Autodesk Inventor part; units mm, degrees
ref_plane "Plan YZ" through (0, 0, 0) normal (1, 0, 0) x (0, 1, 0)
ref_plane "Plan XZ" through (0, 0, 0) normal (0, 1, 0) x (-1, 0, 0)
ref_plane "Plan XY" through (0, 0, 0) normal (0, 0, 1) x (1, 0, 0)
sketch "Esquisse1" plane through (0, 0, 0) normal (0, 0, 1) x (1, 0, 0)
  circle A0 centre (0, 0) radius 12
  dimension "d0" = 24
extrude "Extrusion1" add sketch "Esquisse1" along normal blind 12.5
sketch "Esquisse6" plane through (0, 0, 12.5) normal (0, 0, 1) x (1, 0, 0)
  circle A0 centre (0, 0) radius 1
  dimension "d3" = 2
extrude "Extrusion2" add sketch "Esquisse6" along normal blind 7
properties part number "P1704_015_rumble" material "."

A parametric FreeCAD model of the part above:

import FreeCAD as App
import Part
import Sketcher
from FreeCAD import Vector

doc = App.newDocument("Part")
params = doc.addObject("Spreadsheet::Sheet", "Params")
for row, (alias, value) in enumerate([
    ("sketch1_diameter", "24 mm"),
    ("pad1_length", "12.5 mm"),
    ("sketch2_diameter", "2 mm"),
    ("pad2_length", "7 mm"),
], start=1):
    params.set(f"A{row}", alias)
    params.set(f"B{row}", "=" + value)
    params.setAlias(f"B{row}", alias)

body = doc.addObject("PartDesign::Body", "Body")

# Sketch on XY plane
sketch1 = body.newObject("Sketcher::SketchObject", "Sketch")
sketch1.AttachmentSupport = (doc.getObject("XY_Plane"), [""])
sketch1.MapMode = "FlatFace"
sketch1.addGeometry(Part.Circle(Vector(0, 0, 0), Vector(0, 0, 1), 12), False)
sketch1.addConstraint(Sketcher.Constraint("Coincident", 0, 3, -1, 1))
sketch1.addConstraint(Sketcher.Constraint("Diameter", 0, 24.0))
sketch1.setExpression("Constraints[1]", "Params.sketch1_diameter")
pad1 = body.newObject("PartDesign::Pad", "Pad")
pad1.Profile = sketch1
pad1.setExpression("Length", "Params.pad1_length")

# Sketch on XY plane
sketch2 = body.newObject("Sketcher::SketchObject", "Sketch001")
sketch2.AttachmentSupport = (doc.getObject("XY_Plane"), [""])
sketch2.MapMode = "FlatFace"
sketch2.AttachmentOffset = App.Placement(Vector(0, 0, 12.5), App.Rotation())
sketch2.addGeometry(Part.Circle(Vector(0, 0, 0), Vector(0, 0, 1), 1), False)
sketch2.addConstraint(Sketcher.Constraint("Coincident", 0, 3, -1, 1))
sketch2.addConstraint(Sketcher.Constraint("Diameter", 0, 2.0))
sketch2.setExpression("Constraints[1]", "Params.sketch2_diameter")
pad2 = body.newObject("PartDesign::Pad", "Pad001")
pad2.Profile = sketch2
pad2.setExpression("Length", "Params.pad2_length")

doc.recompute()
